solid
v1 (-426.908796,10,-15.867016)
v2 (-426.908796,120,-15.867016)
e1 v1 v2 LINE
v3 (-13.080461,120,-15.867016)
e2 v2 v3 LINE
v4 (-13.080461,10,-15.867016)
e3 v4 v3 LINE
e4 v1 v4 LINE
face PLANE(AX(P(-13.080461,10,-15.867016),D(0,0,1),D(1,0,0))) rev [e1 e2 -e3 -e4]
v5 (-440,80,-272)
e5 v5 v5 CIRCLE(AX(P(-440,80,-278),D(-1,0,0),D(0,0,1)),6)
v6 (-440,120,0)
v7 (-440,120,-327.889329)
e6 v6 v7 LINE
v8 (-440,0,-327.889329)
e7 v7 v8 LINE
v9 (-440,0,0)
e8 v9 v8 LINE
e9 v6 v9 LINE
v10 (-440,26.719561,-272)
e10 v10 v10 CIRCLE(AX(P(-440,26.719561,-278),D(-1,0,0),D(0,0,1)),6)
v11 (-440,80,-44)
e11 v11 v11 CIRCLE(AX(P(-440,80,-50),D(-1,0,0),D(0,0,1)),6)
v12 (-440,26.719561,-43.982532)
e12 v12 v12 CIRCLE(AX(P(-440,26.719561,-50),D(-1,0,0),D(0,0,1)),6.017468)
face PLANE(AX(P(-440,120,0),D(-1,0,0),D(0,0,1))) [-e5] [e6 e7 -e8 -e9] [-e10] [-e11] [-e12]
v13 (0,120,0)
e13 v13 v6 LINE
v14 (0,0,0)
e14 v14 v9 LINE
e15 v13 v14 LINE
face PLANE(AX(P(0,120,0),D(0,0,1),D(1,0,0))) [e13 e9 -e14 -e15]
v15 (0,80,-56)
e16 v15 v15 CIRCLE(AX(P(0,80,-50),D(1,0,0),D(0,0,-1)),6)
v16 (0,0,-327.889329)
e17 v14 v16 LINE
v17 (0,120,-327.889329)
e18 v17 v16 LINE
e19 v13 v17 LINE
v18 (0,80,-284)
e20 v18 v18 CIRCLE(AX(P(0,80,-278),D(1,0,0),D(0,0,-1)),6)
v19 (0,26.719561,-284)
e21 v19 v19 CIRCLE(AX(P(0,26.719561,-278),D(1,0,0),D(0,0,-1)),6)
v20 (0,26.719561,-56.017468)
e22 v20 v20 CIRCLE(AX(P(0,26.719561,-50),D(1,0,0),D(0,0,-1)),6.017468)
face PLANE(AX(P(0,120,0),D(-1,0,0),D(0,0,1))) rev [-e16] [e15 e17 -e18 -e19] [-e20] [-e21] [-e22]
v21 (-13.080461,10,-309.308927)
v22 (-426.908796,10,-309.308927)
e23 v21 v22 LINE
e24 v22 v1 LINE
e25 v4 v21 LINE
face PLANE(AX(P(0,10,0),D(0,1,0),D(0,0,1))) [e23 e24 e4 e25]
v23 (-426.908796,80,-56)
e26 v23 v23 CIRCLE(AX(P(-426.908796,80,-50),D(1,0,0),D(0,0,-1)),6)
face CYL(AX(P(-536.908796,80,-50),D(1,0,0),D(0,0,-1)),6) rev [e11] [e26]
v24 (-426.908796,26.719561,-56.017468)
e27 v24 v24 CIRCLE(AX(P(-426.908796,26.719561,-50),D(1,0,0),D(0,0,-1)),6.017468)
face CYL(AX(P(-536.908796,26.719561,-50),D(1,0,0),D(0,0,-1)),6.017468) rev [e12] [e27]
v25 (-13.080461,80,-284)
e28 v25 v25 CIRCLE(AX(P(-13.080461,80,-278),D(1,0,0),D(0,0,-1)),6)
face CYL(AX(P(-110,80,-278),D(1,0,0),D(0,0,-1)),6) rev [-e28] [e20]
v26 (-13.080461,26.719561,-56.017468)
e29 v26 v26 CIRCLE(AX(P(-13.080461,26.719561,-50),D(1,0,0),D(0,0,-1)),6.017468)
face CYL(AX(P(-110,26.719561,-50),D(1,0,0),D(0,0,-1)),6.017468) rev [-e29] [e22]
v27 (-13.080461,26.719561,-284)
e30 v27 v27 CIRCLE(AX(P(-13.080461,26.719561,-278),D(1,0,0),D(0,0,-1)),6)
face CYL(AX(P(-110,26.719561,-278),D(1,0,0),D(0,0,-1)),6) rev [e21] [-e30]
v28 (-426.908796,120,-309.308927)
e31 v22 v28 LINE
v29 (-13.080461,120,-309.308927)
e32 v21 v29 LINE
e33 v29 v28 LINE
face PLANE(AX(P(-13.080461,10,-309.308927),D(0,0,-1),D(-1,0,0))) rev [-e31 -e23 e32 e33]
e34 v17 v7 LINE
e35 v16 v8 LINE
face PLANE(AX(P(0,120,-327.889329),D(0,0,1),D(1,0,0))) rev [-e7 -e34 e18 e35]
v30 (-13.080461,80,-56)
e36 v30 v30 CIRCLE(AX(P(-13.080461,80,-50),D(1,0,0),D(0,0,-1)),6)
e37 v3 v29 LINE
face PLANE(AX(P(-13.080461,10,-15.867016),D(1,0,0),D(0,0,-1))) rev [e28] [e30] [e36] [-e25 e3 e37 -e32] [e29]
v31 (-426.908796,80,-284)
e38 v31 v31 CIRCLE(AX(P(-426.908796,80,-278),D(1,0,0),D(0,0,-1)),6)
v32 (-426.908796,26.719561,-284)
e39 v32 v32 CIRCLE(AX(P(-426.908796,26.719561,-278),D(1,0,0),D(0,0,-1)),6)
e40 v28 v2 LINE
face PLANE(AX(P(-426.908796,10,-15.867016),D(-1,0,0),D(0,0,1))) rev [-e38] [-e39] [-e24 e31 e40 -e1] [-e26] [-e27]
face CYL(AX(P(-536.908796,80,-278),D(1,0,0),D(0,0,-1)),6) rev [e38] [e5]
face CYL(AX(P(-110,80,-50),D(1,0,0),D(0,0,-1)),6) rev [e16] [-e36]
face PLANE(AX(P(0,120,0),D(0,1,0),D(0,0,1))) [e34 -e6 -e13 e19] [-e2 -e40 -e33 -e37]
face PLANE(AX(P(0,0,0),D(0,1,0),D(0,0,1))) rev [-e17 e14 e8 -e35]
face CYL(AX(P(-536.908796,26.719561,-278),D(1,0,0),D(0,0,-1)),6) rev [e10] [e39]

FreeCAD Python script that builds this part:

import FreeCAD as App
import Part
import Sketcher

V = App.Vector
Q = App.Units.Quantity

doc = App.newDocument("Part")
body = doc.addObject("PartDesign::Body", "Body")

sketch1 = body.newObject("Sketcher::SketchObject", "Sketch")
sketch1.AttachmentSupport = (doc.getObject("XZ_Plane"), [""])
sketch1.MapMode = "FlatFace"
sketch1.addGeometry([
    Part.LineSegment(V(-440, -328, 0), V(-440, 0, 0)),
    Part.LineSegment(V(-440, 0, 0), V(0, 0, 0)),
    Part.LineSegment(V(0, 0, 0), V(0, -328, 0)),
    Part.LineSegment(V(0, -328, 0), V(-440, -328, 0)),
], False)
sketch1.addConstraint([
    Sketcher.Constraint("Coincident", 0, 2, 1, 1),
    Sketcher.Constraint("Coincident", 1, 2, 2, 1),
    Sketcher.Constraint("Coincident", 2, 2, 3, 1),
    Sketcher.Constraint("Coincident", 3, 2, 0, 1),
    Sketcher.Constraint("Vertical", 0),
    Sketcher.Constraint("Horizontal", 1),
    Sketcher.Constraint("Vertical", 2),
    Sketcher.Constraint("Horizontal", 3),
    Sketcher.Constraint("Coincident", 1, 2, -1, 1),
    Sketcher.Constraint("DistanceX", 1, 1, 1, 2, Q("440 mm")),
    Sketcher.Constraint("DistanceY", 0, 1, 0, 2, Q("327.889329 mm")),
])
pad1 = body.newObject("PartDesign::Pad", "Pad")
pad1.Profile = sketch1
pad1.Length = 120
pad1.Reversed = True

sketch2 = body.newObject("Sketcher::SketchObject", "Sketch001")
sketch2.AttachmentSupport = (doc.getObject("XZ_Plane"), [""])
sketch2.MapMode = "FlatFace"
sketch2.AttachmentOffset = App.Placement(V(0, 0, -120), App.Rotation())
sketch2.addGeometry([
    Part.LineSegment(V(-427, -309, 0), V(-427, -16, 0)),
    Part.LineSegment(V(-427, -16, 0), V(-13, -16, 0)),
    Part.LineSegment(V(-13, -16, 0), V(-13, -309, 0)),
    Part.LineSegment(V(-13, -309, 0), V(-427, -309, 0)),
], False)
sketch2.addConstraint([
    Sketcher.Constraint("Coincident", 0, 2, 1, 1),
    Sketcher.Constraint("Coincident", 1, 2, 2, 1),
    Sketcher.Constraint("Coincident", 2, 2, 3, 1),
    Sketcher.Constraint("Coincident", 3, 2, 0, 1),
    Sketcher.Constraint("Vertical", 0),
    Sketcher.Constraint("Horizontal", 1),
    Sketcher.Constraint("Vertical", 2),
    Sketcher.Constraint("Horizontal", 3),
    Sketcher.Constraint("DistanceY", 0, 1, 0, 2, Q("293.44191 mm")),
    Sketcher.Constraint("DistanceX", 1, 1, 1, 2, Q("413.828335 mm")),
    Sketcher.Constraint("DistanceX", 1, 2, -1, 1, Q("13.080461 mm")),
    Sketcher.Constraint("DistanceY", 0, 2, -1, 1, Q("15.867016 mm")),
])
pocket1 = body.newObject("PartDesign::Pocket", "Pocket")
pocket1.Profile = sketch2
pocket1.Length = 110
pocket1.Reversed = True

sketch3 = body.newObject("Sketcher::SketchObject", "Sketch002")
sketch3.AttachmentSupport = (doc.getObject("YZ_Plane"), [""])
sketch3.MapMode = "FlatFace"
sketch3.AttachmentOffset = App.Placement(V(0, 0, -426.908796), App.Rotation())
sketch3.addGeometry([
    Part.Circle(V(80, -278, 0), V(0, 0, 1), 6),
    Part.Circle(V(27, -278, 0), V(0, 0, 1), 6),
    Part.Circle(V(80, -50, 0), V(0, 0, 1), 6),
    Part.Circle(V(27, -50, 0), V(0, 0, 1), 6),
], False)
sketch3.addConstraint([
    Sketcher.Constraint("Equal", 0, 1),
    Sketcher.Constraint("Equal", 1, 2),
    Sketcher.Constraint("Horizontal", 0, 3, 1, 3),
    Sketcher.Constraint("Horizontal", 2, 3, 3, 3),
    Sketcher.Constraint("Vertical", 0, 3, 2, 3),
    Sketcher.Constraint("Vertical", 1, 3, 3, 3),
    Sketcher.Constraint("Diameter", 0, Q("12 mm")),
    Sketcher.Constraint("DistanceX", -1, 1, 0, 3, Q("80 mm")),
    Sketcher.Constraint("DistanceY", 0, 3, -1, 1, Q("278 mm")),
    Sketcher.Constraint("DistanceY", 2, 3, -1, 1, Q("50 mm")),
    Sketcher.Constraint("Diameter", 3, Q("12.034936 mm")),
    Sketcher.Constraint("DistanceX", -1, 1, 1, 3, Q("26.719561 mm")),
])
pocket2 = body.newObject("PartDesign::Pocket", "Pocket001")
pocket2.Profile = sketch3
pocket2.Length = 110

sketch4 = body.newObject("Sketcher::SketchObject", "Sketch003")
sketch4.AttachmentSupport = (doc.getObject("YZ_Plane"), [""])
sketch4.MapMode = "FlatFace"
sketch4.addGeometry([
    Part.Circle(V(80, -50, 0), V(0, 0, 1), 6),
    Part.Circle(V(27, -50, 0), V(0, 0, 1), 6),
    Part.Circle(V(27, -278, 0), V(0, 0, 1), 6),
    Part.Circle(V(80, -278, 0), V(0, 0, 1), 6),
], False)
sketch4.addConstraint([
    Sketcher.Constraint("Equal", 0, 2),
    Sketcher.Constraint("Equal", 2, 3),
    Sketcher.Constraint("Horizontal", 0, 3, 1, 3),
    Sketcher.Constraint("Horizontal", 2, 3, 3, 3),
    Sketcher.Constraint("Vertical", 1, 3, 2, 3),
    Sketcher.Constraint("Vertical", 0, 3, 3, 3),
    Sketcher.Constraint("Diameter", 0, Q("12 mm")),
    Sketcher.Constraint("DistanceX", -1, 1, 0, 3, Q("80 mm")),
    Sketcher.Constraint("DistanceY", 0, 3, -1, 1, Q("50 mm")),
    Sketcher.Constraint("DistanceY", 2, 3, -1, 1, Q("278 mm")),
    Sketcher.Constraint("Diameter", 1, Q("12.034936 mm")),
    Sketcher.Constraint("DistanceX", -1, 1, 1, 3, Q("26.719561 mm")),
])
pocket3 = body.newObject("PartDesign::Pocket", "Pocket002")
pocket3.Profile = sketch4
pocket3.Length = 110

doc.recompute()
